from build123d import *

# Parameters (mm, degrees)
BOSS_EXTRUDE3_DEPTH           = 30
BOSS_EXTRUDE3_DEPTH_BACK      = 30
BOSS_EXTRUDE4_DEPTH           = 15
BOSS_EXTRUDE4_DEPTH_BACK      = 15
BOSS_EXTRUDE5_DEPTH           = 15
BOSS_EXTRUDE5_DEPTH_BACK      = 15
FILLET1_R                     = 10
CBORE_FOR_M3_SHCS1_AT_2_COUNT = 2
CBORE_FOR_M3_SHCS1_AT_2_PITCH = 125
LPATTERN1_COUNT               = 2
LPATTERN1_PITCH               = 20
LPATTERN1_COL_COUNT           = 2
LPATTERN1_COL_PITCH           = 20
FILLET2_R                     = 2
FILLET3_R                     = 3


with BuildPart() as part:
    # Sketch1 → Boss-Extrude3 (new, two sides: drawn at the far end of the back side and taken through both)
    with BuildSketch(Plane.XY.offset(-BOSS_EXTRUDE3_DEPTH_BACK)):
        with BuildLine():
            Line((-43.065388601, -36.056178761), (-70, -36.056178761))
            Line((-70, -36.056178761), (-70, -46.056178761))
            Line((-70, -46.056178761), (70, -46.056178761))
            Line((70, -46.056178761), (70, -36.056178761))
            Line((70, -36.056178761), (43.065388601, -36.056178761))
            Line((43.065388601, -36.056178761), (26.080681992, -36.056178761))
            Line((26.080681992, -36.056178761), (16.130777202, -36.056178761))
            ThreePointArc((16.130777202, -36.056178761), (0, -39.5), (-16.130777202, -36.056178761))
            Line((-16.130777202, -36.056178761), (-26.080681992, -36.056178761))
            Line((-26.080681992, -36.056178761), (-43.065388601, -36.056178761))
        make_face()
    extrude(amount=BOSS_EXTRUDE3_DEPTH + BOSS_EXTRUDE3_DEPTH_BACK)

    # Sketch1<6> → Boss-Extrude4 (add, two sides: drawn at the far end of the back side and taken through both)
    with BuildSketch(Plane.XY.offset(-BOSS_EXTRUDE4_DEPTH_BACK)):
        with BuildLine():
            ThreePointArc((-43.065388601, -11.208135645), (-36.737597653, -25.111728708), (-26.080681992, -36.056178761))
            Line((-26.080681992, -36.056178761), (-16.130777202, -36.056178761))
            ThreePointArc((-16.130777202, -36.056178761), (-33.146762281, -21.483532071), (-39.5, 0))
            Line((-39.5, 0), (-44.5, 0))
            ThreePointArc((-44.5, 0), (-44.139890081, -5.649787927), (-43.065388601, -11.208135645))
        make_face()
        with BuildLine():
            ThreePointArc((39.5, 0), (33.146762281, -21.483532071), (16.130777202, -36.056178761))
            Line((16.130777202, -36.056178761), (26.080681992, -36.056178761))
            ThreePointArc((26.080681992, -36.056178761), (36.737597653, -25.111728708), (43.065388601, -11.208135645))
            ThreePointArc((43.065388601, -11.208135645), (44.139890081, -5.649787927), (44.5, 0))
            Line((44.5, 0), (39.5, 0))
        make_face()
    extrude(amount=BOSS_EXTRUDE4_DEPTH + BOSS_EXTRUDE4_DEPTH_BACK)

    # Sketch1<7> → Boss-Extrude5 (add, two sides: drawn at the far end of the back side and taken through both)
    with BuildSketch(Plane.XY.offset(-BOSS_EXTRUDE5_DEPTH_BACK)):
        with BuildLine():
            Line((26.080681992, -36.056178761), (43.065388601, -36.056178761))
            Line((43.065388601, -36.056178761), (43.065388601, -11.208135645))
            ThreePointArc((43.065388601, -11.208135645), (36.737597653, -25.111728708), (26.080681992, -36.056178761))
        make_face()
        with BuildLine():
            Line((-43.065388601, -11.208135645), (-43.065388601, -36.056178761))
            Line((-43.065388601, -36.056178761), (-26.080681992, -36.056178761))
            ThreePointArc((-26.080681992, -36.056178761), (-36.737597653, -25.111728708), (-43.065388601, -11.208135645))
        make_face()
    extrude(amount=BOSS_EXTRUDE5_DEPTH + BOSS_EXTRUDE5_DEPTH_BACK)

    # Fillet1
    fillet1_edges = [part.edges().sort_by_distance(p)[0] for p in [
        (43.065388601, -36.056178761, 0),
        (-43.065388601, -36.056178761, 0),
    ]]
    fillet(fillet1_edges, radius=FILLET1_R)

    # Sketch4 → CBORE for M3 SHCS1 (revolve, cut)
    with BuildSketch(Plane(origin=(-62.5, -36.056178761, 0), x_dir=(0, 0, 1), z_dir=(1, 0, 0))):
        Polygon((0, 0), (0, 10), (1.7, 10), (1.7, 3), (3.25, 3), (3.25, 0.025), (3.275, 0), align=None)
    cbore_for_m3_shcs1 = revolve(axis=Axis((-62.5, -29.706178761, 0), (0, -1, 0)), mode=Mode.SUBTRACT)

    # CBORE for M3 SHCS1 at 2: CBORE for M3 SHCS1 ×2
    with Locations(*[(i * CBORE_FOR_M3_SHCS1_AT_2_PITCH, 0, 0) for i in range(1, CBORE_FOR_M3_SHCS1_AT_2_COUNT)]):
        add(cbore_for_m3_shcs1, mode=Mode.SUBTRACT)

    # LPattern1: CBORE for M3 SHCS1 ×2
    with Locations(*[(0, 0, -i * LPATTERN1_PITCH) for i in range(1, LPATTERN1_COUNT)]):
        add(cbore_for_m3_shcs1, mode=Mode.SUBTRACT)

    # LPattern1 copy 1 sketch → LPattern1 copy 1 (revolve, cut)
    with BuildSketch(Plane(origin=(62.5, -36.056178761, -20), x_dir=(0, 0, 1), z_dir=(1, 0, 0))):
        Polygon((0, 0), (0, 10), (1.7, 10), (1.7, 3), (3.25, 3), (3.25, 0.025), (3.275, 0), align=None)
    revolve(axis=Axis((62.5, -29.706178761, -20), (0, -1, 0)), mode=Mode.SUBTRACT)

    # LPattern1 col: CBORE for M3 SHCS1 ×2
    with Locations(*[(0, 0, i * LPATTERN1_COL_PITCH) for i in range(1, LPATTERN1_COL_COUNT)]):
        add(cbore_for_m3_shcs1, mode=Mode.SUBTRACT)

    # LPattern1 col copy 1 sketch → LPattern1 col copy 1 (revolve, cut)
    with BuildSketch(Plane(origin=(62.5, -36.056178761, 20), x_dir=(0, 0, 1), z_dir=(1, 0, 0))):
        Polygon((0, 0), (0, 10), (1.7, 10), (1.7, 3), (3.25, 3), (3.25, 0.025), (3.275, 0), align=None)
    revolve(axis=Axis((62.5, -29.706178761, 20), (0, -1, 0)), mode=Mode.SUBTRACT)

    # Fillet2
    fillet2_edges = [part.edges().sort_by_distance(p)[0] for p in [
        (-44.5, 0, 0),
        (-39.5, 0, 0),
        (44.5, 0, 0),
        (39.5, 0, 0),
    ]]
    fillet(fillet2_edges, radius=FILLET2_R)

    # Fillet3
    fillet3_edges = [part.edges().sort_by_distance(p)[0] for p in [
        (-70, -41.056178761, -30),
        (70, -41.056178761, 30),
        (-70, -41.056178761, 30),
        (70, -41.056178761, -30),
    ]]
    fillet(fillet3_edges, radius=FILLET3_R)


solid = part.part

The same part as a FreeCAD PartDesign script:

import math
import FreeCAD as App
import Part
import Sketcher
from FreeCAD import Vector
Q = App.Units.Quantity


def edges_at(feature, points):
    """Names of the edges that pass closest to the given points."""
    edges = feature.Shape.Edges
    near = lambda p: min(range(len(edges)), key=lambda i: edges[i].distToShape(Part.Vertex(*p))[0])
    return sorted({f"Edge{near(p) + 1}" for p in points})

doc = App.newDocument("Part")
params = doc.addObject("Spreadsheet::Sheet", "Params")
for row, (alias, value) in enumerate([
    ("sketch1_radius", "39.5 mm"),
    ("sketch1_width", "140 mm"),
    ("sketch1_height", "10 mm"),
    ("pad1_length", "30 mm"),
    ("pad1_length2", "30 mm"),
    ("sketch2_radius", "44.5 mm"),
    ("sketch2_radius2", "39.5 mm"),
    ("pad2_length", "15 mm"),
    ("pad2_length2", "15 mm"),
    ("sketch3_radius", "44.5 mm"),
    ("pad3_length", "15 mm"),
    ("pad3_length2", "15 mm"),
    ("fillet_radius", "10 mm"),
    ("sketch4_width", "10 mm"),
    ("sketch4_width2", "7 mm"),
    ("sketch4_height", "1.7 mm"),
    ("sketch4_height2", "1.55 mm"),
    ("groove_angle", "360 deg"),
    ("linearpattern_pitch", "125 mm"),
    ("linearpattern2_pitch", "20 mm"),
    ("sketch5_width", "10 mm"),
    ("sketch5_width2", "7 mm"),
    ("sketch5_height", "1.7 mm"),
    ("sketch5_height2", "1.55 mm"),
    ("groove2_angle", "360 deg"),
    ("linearpattern3_pitch", "20 mm"),
    ("sketch6_width", "10 mm"),
    ("sketch6_width2", "7 mm"),
    ("sketch6_height", "1.7 mm"),
    ("sketch6_height2", "1.55 mm"),
    ("groove3_angle", "360 deg"),
    ("fillet2_radius", "2 mm"),
    ("fillet3_radius", "3 mm"),
], start=1):
    params.set(f"A{row}", alias)
    params.set(f"B{row}", "=" + value)
    params.setAlias(f"B{row}", alias)

body = doc.addObject("PartDesign::Body", "Body")

# Sketch on XY plane
sketch1 = body.newObject("Sketcher::SketchObject", "Sketch")
sketch1.AttachmentSupport = (doc.getObject("XY_Plane"), [""])
sketch1.MapMode = "FlatFace"
sketch1.addGeometry([
    Part.LineSegment(Vector(-70, -36, 0), Vector(-70, -46, 0)),  # 0
    Part.LineSegment(Vector(-70, -46, 0), Vector(70, -46, 0)),  # 1
    Part.LineSegment(Vector(70, -46, 0), Vector(70, -36, 0)),  # 2
    Part.LineSegment(Vector(70, -36, 0), Vector(16, -36, 0)),  # 3
    Part.ArcOfCircle(Part.Circle(Vector(0, 0, 0), Vector(0, 0, 1), 39), math.radians(-114), math.radians(-66)),  # 4
    Part.LineSegment(Vector(-16, -36, 0), Vector(-70, -36, 0)),  # 5
], False)
sketch1.addConstraint([
    Sketcher.Constraint("Coincident", 0, 2, 1, 1),
    Sketcher.Constraint("Coincident", 1, 2, 2, 1),
    Sketcher.Constraint("Coincident", 2, 2, 3, 1),
    Sketcher.Constraint("Coincident", 3, 2, 4, 2),
    Sketcher.Constraint("Coincident", 4, 1, 5, 1),
    Sketcher.Constraint("Coincident", 5, 2, 0, 1),
    Sketcher.Constraint("Vertical", 0),
    Sketcher.Constraint("Horizontal", 1),
    Sketcher.Constraint("Vertical", 2),
    Sketcher.Constraint("Horizontal", 3),
    Sketcher.Constraint("Horizontal", 5),
    Sketcher.Constraint("Coincident", 4, 3, -1, 1),
    Sketcher.Constraint("Symmetric", 2, 2, 5, 2, -2),
    Sketcher.Constraint("Radius", 4, Q("39.5 mm")),
    Sketcher.Constraint("DistanceX", 1, 1, 1, 2, Q("140 mm")),
    Sketcher.Constraint("DistanceY", 0, 2, 0, 1, Q("10 mm")),
    Sketcher.Constraint("DistanceX", 3, 2, 3, 1, Q("53.869223 mm")),
])
sketch1.setExpression("Constraints[13]", "Params.sketch1_radius")
sketch1.setExpression("Constraints[14]", "Params.sketch1_width")
sketch1.setExpression("Constraints[15]", "Params.sketch1_height")
pad1 = body.newObject("PartDesign::Pad", "Pad")
pad1.Profile = sketch1
pad1.Type = "TwoLengths"
pad1.setExpression("Length", "Params.pad1_length")
pad1.setExpression("Length2", "Params.pad1_length2")

# Sketch on XY plane
sketch2 = body.newObject("Sketcher::SketchObject", "Sketch001")
sketch2.AttachmentSupport = (doc.getObject("XY_Plane"), [""])
sketch2.MapMode = "FlatFace"
sketch2.addGeometry([
    Part.ArcOfCircle(Part.Circle(Vector(0, 0, 0), Vector(0, 0, 1), 44), math.radians(-165), math.radians(-126)),  # 0
    Part.LineSegment(Vector(-26, -36, 0), Vector(-16, -36, 0)),  # 1
    Part.ArcOfCircle(Part.Circle(Vector(0, 0, 0), Vector(0, 0, 1), 40), math.radians(-180), math.radians(-114)),  # 2
    Part.LineSegment(Vector(-40, 0, 0), Vector(-44, 0, 0)),  # 3
    Part.ArcOfCircle(Part.Circle(Vector(0, 0, 0), Vector(0, 0, 1), 45), math.radians(-180), math.radians(-165.41)),  # 4
    Part.ArcOfCircle(Part.Circle(Vector(0, 0, 0), Vector(0, 0, 1), 40), math.radians(-66), math.radians(0)),  # 5
    Part.LineSegment(Vector(16, -36, 0), Vector(26, -36, 0)),  # 6
    Part.ArcOfCircle(Part.Circle(Vector(0, 0, 0), Vector(0, 0, 1), 44), math.radians(-54), math.radians(-15)),  # 7
    Part.ArcOfCircle(Part.Circle(Vector(0, 0, 0), Vector(0, 0, 1), 45), math.radians(-14.59), math.radians(0)),  # 8
    Part.LineSegment(Vector(44, 0, 0), Vector(40, 0, 0)),  # 9
], False)
sketch2.addConstraint([
    Sketcher.Constraint("Coincident", 0, 2, 1, 1),
    Sketcher.Constraint("Coincident", 1, 2, 2, 2),
    Sketcher.Constraint("Coincident", 2, 1, 3, 1),
    Sketcher.Constraint("Coincident", 3, 2, 4, 1),
    Sketcher.Constraint("Tangent", 4, 2, 0, 1),
    Sketcher.Constraint("Coincident", 5, 1, 6, 1),
    Sketcher.Constraint("Coincident", 6, 2, 7, 1),
    Sketcher.Constraint("Tangent", 7, 2, 8, 1),
    Sketcher.Constraint("Coincident", 8, 2, 9, 1),
    Sketcher.Constraint("Coincident", 9, 2, 5, 2),
    Sketcher.Constraint("Horizontal", 1),
    Sketcher.Constraint("Horizontal", 3),
    Sketcher.Constraint("Horizontal", 6),
    Sketcher.Constraint("Horizontal", 9),
    Sketcher.Constraint("Coincident", 0, 3, -1, 1),
    Sketcher.Constraint("Coincident", 2, 3, -1, 1),
    Sketcher.Constraint("Coincident", 5, 3, -1, 1),
    Sketcher.Constraint("Coincident", 7, 3, -1, 1),
    Sketcher.Constraint("Equal", 0, 4),
    Sketcher.Constraint("Equal", 2, 5),
    Sketcher.Constraint("Equal", 4, 7),
    Sketcher.Constraint("Equal", 7, 8),
    Sketcher.Constraint("PointOnObject", 2, 1, -1),
    Sketcher.Constraint("PointOnObject", 8, 2, -1),
    Sketcher.Constraint("Horizontal", 1, 2, 5, 1),
    Sketcher.Constraint("Horizontal", 4, 2, 7, 2),
    Sketcher.Constraint("Radius", 0, Q("44.5 mm")),
    Sketcher.Constraint("Radius", 2, Q("39.5 mm")),
    Sketcher.Constraint("DistanceX", 1, 1, 1, 2, Q("9.949905 mm")),
    Sketcher.Constraint("DistanceX", 4, 2, -1, 1, Q("43.065389 mm")),
])
sketch2.setExpression("Constraints[26]", "Params.sketch2_radius")
sketch2.setExpression("Constraints[27]", "Params.sketch2_radius2")
pad2 = body.newObject("PartDesign::Pad", "Pad001")
pad2.Profile = sketch2
pad2.Type = "TwoLengths"
pad2.setExpression("Length", "Params.pad2_length")
pad2.setExpression("Length2", "Params.pad2_length2")

# Sketch on XY plane
sketch3 = body.newObject("Sketcher::SketchObject", "Sketch002")
sketch3.AttachmentSupport = (doc.getObject("XY_Plane"), [""])
sketch3.MapMode = "FlatFace"
sketch3.addGeometry([
    Part.LineSegment(Vector(26, -36, 0), Vector(43, -36, 0)),  # 0
    Part.LineSegment(Vector(43, -36, 0), Vector(43, -11, 0)),  # 1
    Part.ArcOfCircle(Part.Circle(Vector(0, 0, 0), Vector(0, 0, 1), 44), math.radians(-54), math.radians(-15)),  # 2
    Part.LineSegment(Vector(-43, -11, 0), Vector(-43, -36, 0)),  # 3
    Part.LineSegment(Vector(-43, -36, 0), Vector(-26, -36, 0)),  # 4
    Part.ArcOfCircle(Part.Circle(Vector(0, 0, 0), Vector(0, 0, 1), 44), math.radians(-165), math.radians(-126)),  # 5
], False)
sketch3.addConstraint([
    Sketcher.Constraint("Coincident", 0, 2, 1, 1),
    Sketcher.Constraint("Coincident", 1, 2, 2, 2),
    Sketcher.Constraint("Coincident", 2, 1, 0, 1),
    Sketcher.Constraint("Coincident", 3, 2, 4, 1),
    Sketcher.Constraint("Coincident", 4, 2, 5, 2),
    Sketcher.Constraint("Coincident", 5, 1, 3, 1),
    Sketcher.Constraint("Horizontal", 0),
    Sketcher.Constraint("Vertical", 1),
    Sketcher.Constraint("Vertical", 3),
    Sketcher.Constraint("Horizontal", 4),
    Sketcher.Constraint("Coincident", 2, 3, -1, 1),
    Sketcher.Constraint("Coincident", 5, 3, -1, 1),
    Sketcher.Constraint("Equal", 2, 5),
    Sketcher.Constraint("Symmetric", 0, 2, 3, 2, -2),
    Sketcher.Constraint("Radius", 2, Q("44.5 mm")),
    Sketcher.Constraint("DistanceX", 0, 1, 0, 2, Q("16.984707 mm")),
    Sketcher.Constraint("DistanceY", 1, 1, 1, 2, Q("24.848043 mm")),
])
sketch3.setExpression("Constraints[14]", "Params.sketch3_radius")
pad3 = body.newObject("PartDesign::Pad", "Pad002")
pad3.Profile = sketch3
pad3.Type = "TwoLengths"
pad3.setExpression("Length", "Params.pad3_length")
pad3.setExpression("Length2", "Params.pad3_length2")
doc.recompute()

fillet = body.newObject("PartDesign::Fillet", "Fillet")
fillet.Base = (pad3, edges_at(pad3, [(43.065, -36.056, 0), (-43.065, -36.056, 0)]))
fillet.setExpression("Radius", "Params.fillet_radius")

# Sketch on YZ plane
sketch4 = body.newObject("Sketcher::SketchObject", "Sketch003")
sketch4.AttachmentSupport = (doc.getObject("YZ_Plane"), [""])
sketch4.MapMode = "FlatFace"
sketch4.AttachmentOffset = App.Placement(Vector(0, 0, -62.5), App.Rotation())
sketch4.addGeometry([
    Part.LineSegment(Vector(-46.056, 0, 0), Vector(-36.056, 0, 0)),  # 0
    Part.LineSegment(Vector(-36.056, 0, 0), Vector(-36.056, 3.275, 0)),  # 1
    Part.LineSegment(Vector(-36.056, 3.275, 0), Vector(-36.081, 3.25, 0)),  # 2
    Part.LineSegment(Vector(-36.081, 3.25, 0), Vector(-39.056, 3.25, 0)),  # 3
    Part.LineSegment(Vector(-39.056, 3.25, 0), Vector(-39.056, 1.7, 0)),  # 4
    Part.LineSegment(Vector(-39.056, 1.7, 0), Vector(-46.056, 1.7, 0)),  # 5
    Part.LineSegment(Vector(-46.056, 1.7, 0), Vector(-46.056, 0, 0)),  # 6
], False)
sketch4.addConstraint([
    Sketcher.Constraint("Coincident", 0, 2, 1, 1),
    Sketcher.Constraint("Coincident", 1, 2, 2, 1),
    Sketcher.Constraint("Coincident", 2, 2, 3, 1),
    Sketcher.Constraint("Coincident", 3, 2, 4, 1),
    Sketcher.Constraint("Coincident", 4, 2, 5, 1),
    Sketcher.Constraint("Coincident", 5, 2, 6, 1),
    Sketcher.Constraint("Coincident", 6, 2, 0, 1),
    Sketcher.Constraint("Horizontal", 0),
    Sketcher.Constraint("Vertical", 1),
    Sketcher.Constraint("Horizontal", 3),
    Sketcher.Constraint("Vertical", 4),
    Sketcher.Constraint("Horizontal", 5),
    Sketcher.Constraint("Vertical", 6),
    Sketcher.Constraint("PointOnObject", 0, 2, -1),
    Sketcher.Constraint("DistanceX", 0, 1, 0, 2, Q("10 mm")),
    Sketcher.Constraint("DistanceX", 5, 2, 5, 1, Q("7 mm")),
    Sketcher.Constraint("Angle", 2, Q("-135 deg")),
    Sketcher.Constraint("DistanceY", 6, 2, 6, 1, Q("1.7 mm")),
    Sketcher.Constraint("DistanceY", 4, 2, 4, 1, Q("1.55 mm")),
    Sketcher.Constraint("DistanceX", 3, 2, 3, 1, Q("2.975 mm")),
    Sketcher.Constraint("DistanceX", 0, 2, -1, 1, Q("36.056179 mm")),
])
sketch4.setExpression("Constraints[14]", "Params.sketch4_width")
sketch4.setExpression("Constraints[15]", "Params.sketch4_width2")
sketch4.setExpression("Constraints[17]", "Params.sketch4_height")
sketch4.setExpression("Constraints[18]", "Params.sketch4_height2")
groove = body.newObject("PartDesign::Groove", "Groove")
groove.Profile = sketch4
groove.ReferenceAxis = (sketch4, ["H_Axis"])
groove.setExpression("Angle", "Params.groove_angle")
doc.recompute()

linearpattern = body.newObject("PartDesign::LinearPattern", "LinearPattern")
linearpattern.Originals = [groove]
linearpattern.Direction = (doc.getObject("X_Axis"), [""])
linearpattern.Mode = "offset"
linearpattern.setExpression("Offset", "Params.linearpattern_pitch")
linearpattern.Occurrences = 2
body.Tip = linearpattern
doc.recompute()

linearpattern2 = body.newObject("PartDesign::LinearPattern", "LinearPattern001")
linearpattern2.Originals = [groove]
linearpattern2.Direction = (doc.getObject("Z_Axis"), [""])
linearpattern2.Mode = "offset"
linearpattern2.setExpression("Offset", "Params.linearpattern2_pitch")
linearpattern2.Occurrences = 2
linearpattern2.Reversed = True
body.Tip = linearpattern2

# Sketch on YZ plane
sketch5 = body.newObject("Sketcher::SketchObject", "Sketch004")
sketch5.AttachmentSupport = (doc.getObject("YZ_Plane"), [""])
sketch5.MapMode = "FlatFace"
sketch5.AttachmentOffset = App.Placement(Vector(0, 0, 62.5), App.Rotation())
sketch5.addGeometry([
    Part.LineSegment(Vector(-46.056, -20, 0), Vector(-36.056, -20, 0)),  # 0
    Part.LineSegment(Vector(-36.056, -20, 0), Vector(-36.056, -16.725, 0)),  # 1
    Part.LineSegment(Vector(-36.056, -16.725, 0), Vector(-36.081, -16.75, 0)),  # 2
    Part.LineSegment(Vector(-36.081, -16.75, 0), Vector(-39.056, -16.75, 0)),  # 3
    Part.LineSegment(Vector(-39.056, -16.75, 0), Vector(-39.056, -18.3, 0)),  # 4
    Part.LineSegment(Vector(-39.056, -18.3, 0), Vector(-46.056, -18.3, 0)),  # 5
    Part.LineSegment(Vector(-46.056, -18.3, 0), Vector(-46.056, -20, 0)),  # 6
], False)
sketch5.addGeometry(Part.LineSegment(Vector(-36.056, -20, 0), Vector(-46.056, -20, 0)), True)  # axis
sketch5.addConstraint([
    Sketcher.Constraint("Coincident", 0, 2, 1, 1),
    Sketcher.Constraint("Coincident", 1, 2, 2, 1),
    Sketcher.Constraint("Coincident", 2, 2, 3, 1),
    Sketcher.Constraint("Coincident", 3, 2, 4, 1),
    Sketcher.Constraint("Coincident", 4, 2, 5, 1),
    Sketcher.Constraint("Coincident", 5, 2, 6, 1),
    Sketcher.Constraint("Coincident", 6, 2, 0, 1),
    Sketcher.Constraint("Horizontal", 0),
    Sketcher.Constraint("Vertical", 1),
    Sketcher.Constraint("Horizontal", 3),
    Sketcher.Constraint("Vertical", 4),
    Sketcher.Constraint("Horizontal", 5),
    Sketcher.Constraint("Vertical", 6),
    Sketcher.Constraint("Horizontal", 7),
    Sketcher.Constraint("Coincident", 7, 1, 0, 2),
    Sketcher.Constraint("Vertical", 5, 2, 7, 2),
    Sketcher.Constraint("DistanceX", 0, 1, 0, 2, Q("10 mm")),
    Sketcher.Constraint("DistanceX", 5, 2, 5, 1, Q("7 mm")),
    Sketcher.Constraint("Angle", 2, Q("-135 deg")),
    Sketcher.Constraint("DistanceY", 6, 2, 6, 1, Q("1.7 mm")),
    Sketcher.Constraint("DistanceY", 0, 2, -1, 1, Q("20 mm")),
    Sketcher.Constraint("DistanceY", 4, 2, 4, 1, Q("1.55 mm")),
    Sketcher.Constraint("DistanceX", 3, 2, 3, 1, Q("2.975 mm")),
    Sketcher.Constraint("DistanceX", 0, 2, -1, 1, Q("36.056179 mm")),
])
sketch5.setExpression("Constraints[16]", "Params.sketch5_width")
sketch5.setExpression("Constraints[17]", "Params.sketch5_width2")
sketch5.setExpression("Constraints[19]", "Params.sketch5_height")
sketch5.setExpression("Constraints[21]", "Params.sketch5_height2")
groove2 = body.newObject("PartDesign::Groove", "Groove001")
groove2.Profile = sketch5
groove2.ReferenceAxis = (sketch5, ["Axis0"])
groove2.setExpression("Angle", "Params.groove2_angle")
doc.recompute()

linearpattern3 = body.newObject("PartDesign::LinearPattern", "LinearPattern002")
linearpattern3.Originals = [groove]
linearpattern3.Direction = (doc.getObject("Z_Axis"), [""])
linearpattern3.Mode = "offset"
linearpattern3.setExpression("Offset", "Params.linearpattern3_pitch")
linearpattern3.Occurrences = 2
body.Tip = linearpattern3

# Sketch on YZ plane
sketch6 = body.newObject("Sketcher::SketchObject", "Sketch005")
sketch6.AttachmentSupport = (doc.getObject("YZ_Plane"), [""])
sketch6.MapMode = "FlatFace"
sketch6.AttachmentOffset = App.Placement(Vector(0, 0, 62.5), App.Rotation())
sketch6.addGeometry([
    Part.LineSegment(Vector(-46.056, 20, 0), Vector(-36.056, 20, 0)),  # 0
    Part.LineSegment(Vector(-36.056, 20, 0), Vector(-36.056, 23.275, 0)),  # 1
    Part.LineSegment(Vector(-36.056, 23.275, 0), Vector(-36.081, 23.25, 0)),  # 2
    Part.LineSegment(Vector(-36.081, 23.25, 0), Vector(-39.056, 23.25, 0)),  # 3
    Part.LineSegment(Vector(-39.056, 23.25, 0), Vector(-39.056, 21.7, 0)),  # 4
    Part.LineSegment(Vector(-39.056, 21.7, 0), Vector(-46.056, 21.7, 0)),  # 5
    Part.LineSegment(Vector(-46.056, 21.7, 0), Vector(-46.056, 20, 0)),  # 6
], False)
sketch6.addGeometry(Part.LineSegment(Vector(-36.056, 20, 0), Vector(-46.056, 20, 0)), True)  # axis
sketch6.addConstraint([
    Sketcher.Constraint("Coincident", 0, 2, 1, 1),
    Sketcher.Constraint("Coincident", 1, 2, 2, 1),
    Sketcher.Constraint("Coincident", 2, 2, 3, 1),
    Sketcher.Constraint("Coincident", 3, 2, 4, 1),
    Sketcher.Constraint("Coincident", 4, 2, 5, 1),
    Sketcher.Constraint("Coincident", 5, 2, 6, 1),
    Sketcher.Constraint("Coincident", 6, 2, 0, 1),
    Sketcher.Constraint("Horizontal", 0),
    Sketcher.Constraint("Vertical", 1),
    Sketcher.Constraint("Horizontal", 3),
    Sketcher.Constraint("Vertical", 4),
    Sketcher.Constraint("Horizontal", 5),
    Sketcher.Constraint("Vertical", 6),
    Sketcher.Constraint("Horizontal", 7),
    Sketcher.Constraint("Coincident", 7, 1, 0, 2),
    Sketcher.Constraint("Vertical", 5, 2, 7, 2),
    Sketcher.Constraint("DistanceX", 0, 1, 0, 2, Q("10 mm")),
    Sketcher.Constraint("DistanceX", 5, 2, 5, 1, Q("7 mm")),
    Sketcher.Constraint("Angle", 2, Q("-135 deg")),
    Sketcher.Constraint("DistanceY", 6, 2, 6, 1, Q("1.7 mm")),
    Sketcher.Constraint("DistanceY", -1, 1, 0, 2, Q("20 mm")),
    Sketcher.Constraint("DistanceY", 4, 2, 4, 1, Q("1.55 mm")),
    Sketcher.Constraint("DistanceX", 3, 2, 3, 1, Q("2.975 mm")),
    Sketcher.Constraint("DistanceX", 0, 2, -1, 1, Q("36.056179 mm")),
])
sketch6.setExpression("Constraints[16]", "Params.sketch6_width")
sketch6.setExpression("Constraints[17]", "Params.sketch6_width2")
sketch6.setExpression("Constraints[19]", "Params.sketch6_height")
sketch6.setExpression("Constraints[21]", "Params.sketch6_height2")
groove3 = body.newObject("PartDesign::Groove", "Groove002")
groove3.Profile = sketch6
groove3.ReferenceAxis = (sketch6, ["Axis0"])
groove3.setExpression("Angle", "Params.groove3_angle")
doc.recompute()

fillet2 = body.newObject("PartDesign::Fillet", "Fillet001")
fillet2.Base = (groove3, edges_at(groove3, [
    (-44.5, 0, 0),
    (-39.5, 0, 0),
    (44.5, 0, 0),
    (39.5, 0, 0),
]))
fillet2.setExpression("Radius", "Params.fillet2_radius")
doc.recompute()

fillet3 = body.newObject("PartDesign::Fillet", "Fillet002")
fillet3.Base = (fillet2, edges_at(fillet2, [
    (-70, -41.056, -30),
    (70, -41.056, 30),
    (-70, -41.056, 30),
    (70, -41.056, -30),
]))
fillet3.setExpression("Radius", "Params.fillet3_radius")

doc.recompute()
